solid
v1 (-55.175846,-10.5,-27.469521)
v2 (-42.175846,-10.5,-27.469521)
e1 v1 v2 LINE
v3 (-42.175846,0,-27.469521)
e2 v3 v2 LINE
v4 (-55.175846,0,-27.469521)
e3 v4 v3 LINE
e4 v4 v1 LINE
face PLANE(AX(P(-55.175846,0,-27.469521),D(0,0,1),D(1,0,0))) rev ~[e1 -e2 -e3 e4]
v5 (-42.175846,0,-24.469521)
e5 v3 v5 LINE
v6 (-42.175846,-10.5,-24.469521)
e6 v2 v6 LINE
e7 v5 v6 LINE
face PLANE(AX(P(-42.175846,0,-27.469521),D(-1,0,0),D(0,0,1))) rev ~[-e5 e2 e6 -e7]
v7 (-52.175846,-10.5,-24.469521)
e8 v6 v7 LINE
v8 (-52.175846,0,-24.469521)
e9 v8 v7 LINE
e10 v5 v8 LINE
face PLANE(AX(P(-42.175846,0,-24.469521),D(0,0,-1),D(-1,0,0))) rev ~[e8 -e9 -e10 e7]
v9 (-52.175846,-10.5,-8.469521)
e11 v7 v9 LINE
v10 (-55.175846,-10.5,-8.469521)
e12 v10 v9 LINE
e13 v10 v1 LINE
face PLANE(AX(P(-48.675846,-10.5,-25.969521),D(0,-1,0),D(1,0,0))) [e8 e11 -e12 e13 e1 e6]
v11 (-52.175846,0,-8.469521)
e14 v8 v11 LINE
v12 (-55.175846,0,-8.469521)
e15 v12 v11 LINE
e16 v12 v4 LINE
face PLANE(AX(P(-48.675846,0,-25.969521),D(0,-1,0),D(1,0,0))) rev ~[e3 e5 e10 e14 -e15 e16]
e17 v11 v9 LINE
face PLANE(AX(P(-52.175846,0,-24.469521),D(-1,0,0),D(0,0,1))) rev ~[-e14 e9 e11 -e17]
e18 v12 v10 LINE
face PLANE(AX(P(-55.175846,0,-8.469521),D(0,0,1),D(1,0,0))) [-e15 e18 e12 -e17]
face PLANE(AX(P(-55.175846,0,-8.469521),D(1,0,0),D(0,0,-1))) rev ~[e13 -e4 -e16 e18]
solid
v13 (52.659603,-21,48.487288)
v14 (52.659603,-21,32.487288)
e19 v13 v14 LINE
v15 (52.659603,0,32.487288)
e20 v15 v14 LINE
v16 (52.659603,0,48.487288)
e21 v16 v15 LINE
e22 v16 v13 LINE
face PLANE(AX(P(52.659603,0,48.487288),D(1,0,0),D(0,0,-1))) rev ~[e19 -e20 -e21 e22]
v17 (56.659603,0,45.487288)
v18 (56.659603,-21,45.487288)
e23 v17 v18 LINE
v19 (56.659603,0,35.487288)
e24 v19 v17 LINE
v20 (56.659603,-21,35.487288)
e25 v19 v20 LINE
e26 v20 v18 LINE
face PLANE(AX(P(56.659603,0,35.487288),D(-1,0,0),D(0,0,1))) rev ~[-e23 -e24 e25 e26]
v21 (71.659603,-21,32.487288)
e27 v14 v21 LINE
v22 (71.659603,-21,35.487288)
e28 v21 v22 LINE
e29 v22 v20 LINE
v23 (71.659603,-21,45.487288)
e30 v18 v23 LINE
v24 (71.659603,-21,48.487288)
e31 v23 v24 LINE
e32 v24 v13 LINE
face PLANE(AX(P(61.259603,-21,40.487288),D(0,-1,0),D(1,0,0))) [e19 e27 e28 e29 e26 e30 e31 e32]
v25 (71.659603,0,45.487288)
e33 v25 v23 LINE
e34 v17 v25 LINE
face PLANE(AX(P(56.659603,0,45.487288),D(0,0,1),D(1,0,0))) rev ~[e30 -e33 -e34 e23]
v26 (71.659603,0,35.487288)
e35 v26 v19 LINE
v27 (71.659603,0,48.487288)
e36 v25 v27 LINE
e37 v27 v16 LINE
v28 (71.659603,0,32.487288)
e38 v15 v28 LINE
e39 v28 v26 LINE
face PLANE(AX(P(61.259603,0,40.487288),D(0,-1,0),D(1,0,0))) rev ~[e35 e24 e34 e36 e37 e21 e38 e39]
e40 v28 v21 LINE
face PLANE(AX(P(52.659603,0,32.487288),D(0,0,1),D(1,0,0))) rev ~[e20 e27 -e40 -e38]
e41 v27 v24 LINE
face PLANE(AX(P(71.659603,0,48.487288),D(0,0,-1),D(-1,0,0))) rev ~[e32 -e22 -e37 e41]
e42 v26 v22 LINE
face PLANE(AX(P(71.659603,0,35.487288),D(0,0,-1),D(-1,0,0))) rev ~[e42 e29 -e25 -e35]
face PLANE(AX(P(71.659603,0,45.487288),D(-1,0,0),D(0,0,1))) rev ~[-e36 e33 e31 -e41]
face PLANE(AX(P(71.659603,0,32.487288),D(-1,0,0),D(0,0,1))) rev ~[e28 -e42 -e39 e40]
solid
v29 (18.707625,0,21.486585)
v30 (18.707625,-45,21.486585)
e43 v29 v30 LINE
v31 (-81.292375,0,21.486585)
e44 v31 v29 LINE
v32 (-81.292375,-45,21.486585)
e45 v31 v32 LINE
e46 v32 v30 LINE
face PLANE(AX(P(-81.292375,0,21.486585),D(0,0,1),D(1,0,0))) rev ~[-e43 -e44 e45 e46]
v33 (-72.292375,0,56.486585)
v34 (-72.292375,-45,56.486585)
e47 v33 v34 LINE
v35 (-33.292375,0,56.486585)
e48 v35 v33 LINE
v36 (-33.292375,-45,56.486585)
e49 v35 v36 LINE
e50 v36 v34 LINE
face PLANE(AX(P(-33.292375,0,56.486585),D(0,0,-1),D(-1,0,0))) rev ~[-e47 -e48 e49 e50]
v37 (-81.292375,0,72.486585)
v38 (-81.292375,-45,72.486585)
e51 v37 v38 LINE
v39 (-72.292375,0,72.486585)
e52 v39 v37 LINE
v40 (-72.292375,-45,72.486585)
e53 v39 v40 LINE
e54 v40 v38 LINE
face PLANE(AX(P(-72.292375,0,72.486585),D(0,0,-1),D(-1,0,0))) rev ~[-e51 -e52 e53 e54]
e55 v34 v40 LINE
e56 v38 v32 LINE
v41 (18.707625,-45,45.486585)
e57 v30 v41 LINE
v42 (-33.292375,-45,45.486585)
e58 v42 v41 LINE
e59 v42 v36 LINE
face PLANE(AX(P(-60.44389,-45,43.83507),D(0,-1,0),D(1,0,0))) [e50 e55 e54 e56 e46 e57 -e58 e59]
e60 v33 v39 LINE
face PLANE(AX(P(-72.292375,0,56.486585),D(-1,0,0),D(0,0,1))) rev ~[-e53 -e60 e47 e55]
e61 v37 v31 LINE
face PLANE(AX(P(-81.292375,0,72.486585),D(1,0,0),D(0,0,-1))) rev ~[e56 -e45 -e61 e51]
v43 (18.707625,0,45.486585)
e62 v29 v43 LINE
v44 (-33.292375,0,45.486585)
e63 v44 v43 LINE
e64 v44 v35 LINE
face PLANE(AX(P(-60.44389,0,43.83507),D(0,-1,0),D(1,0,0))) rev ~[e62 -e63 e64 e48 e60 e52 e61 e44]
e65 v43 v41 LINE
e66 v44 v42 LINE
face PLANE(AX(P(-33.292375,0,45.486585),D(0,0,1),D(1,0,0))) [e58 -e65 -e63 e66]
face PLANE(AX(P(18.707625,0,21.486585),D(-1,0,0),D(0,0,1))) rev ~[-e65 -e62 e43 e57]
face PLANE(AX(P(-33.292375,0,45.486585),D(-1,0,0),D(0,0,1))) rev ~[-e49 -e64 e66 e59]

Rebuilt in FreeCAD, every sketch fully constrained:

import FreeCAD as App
import Part
import Sketcher
from FreeCAD import Vector
Q = App.Units.Quantity

doc = App.newDocument("Part")
body = doc.addObject("PartDesign::Body", "Body")

# Sketch on XZ plane
sketch1 = body.newObject("Sketcher::SketchObject", "Sketch")
sketch1.AttachmentSupport = (doc.getObject("XZ_Plane"), [""])
sketch1.MapMode = "FlatFace"
sketch1.addGeometry([
    Part.LineSegment(Vector(-72, 72, 0), Vector(-81, 72, 0)),  # 0
    Part.LineSegment(Vector(-81, 72, 0), Vector(-81, 21, 0)),  # 1
    Part.LineSegment(Vector(-81, 21, 0), Vector(19, 21, 0)),  # 2
    Part.LineSegment(Vector(19, 21, 0), Vector(19, 45, 0)),  # 3
    Part.LineSegment(Vector(19, 45, 0), Vector(-33, 45, 0)),  # 4
    Part.LineSegment(Vector(-33, 45, 0), Vector(-33, 56, 0)),  # 5
    Part.LineSegment(Vector(-33, 56, 0), Vector(-72, 56, 0)),  # 6
    Part.LineSegment(Vector(-72, 56, 0), Vector(-72, 72, 0)),  # 7
], False)
sketch1.addConstraint([
    Sketcher.Constraint("Coincident", 0, 2, 1, 1),
    Sketcher.Constraint("Coincident", 1, 2, 2, 1),
    Sketcher.Constraint("Coincident", 2, 2, 3, 1),
    Sketcher.Constraint("Coincident", 3, 2, 4, 1),
    Sketcher.Constraint("Coincident", 4, 2, 5, 1),
    Sketcher.Constraint("Coincident", 5, 2, 6, 1),
    Sketcher.Constraint("Coincident", 6, 2, 7, 1),
    Sketcher.Constraint("Coincident", 7, 2, 0, 1),
    Sketcher.Constraint("Horizontal", 0),
    Sketcher.Constraint("Vertical", 1),
    Sketcher.Constraint("Horizontal", 2),
    Sketcher.Constraint("Vertical", 3),
    Sketcher.Constraint("Horizontal", 4),
    Sketcher.Constraint("Vertical", 5),
    Sketcher.Constraint("Horizontal", 6),
    Sketcher.Constraint("Vertical", 7),
    Sketcher.Constraint("DistanceX", 0, 2, 0, 1, Q("9 mm")),
    Sketcher.Constraint("DistanceX", 2, 1, 2, 2, Q("100 mm")),
    Sketcher.Constraint("DistanceX", 4, 2, 4, 1, Q("52 mm")),
    Sketcher.Constraint("DistanceY", 1, 2, 1, 1, Q("51 mm")),
    Sketcher.Constraint("DistanceY", 3, 1, 3, 2, Q("24 mm")),
    Sketcher.Constraint("DistanceY", 5, 1, 5, 2, Q("11 mm")),
    Sketcher.Constraint("DistanceX", 0, 2, -1, 1, Q("81.292375 mm")),
    Sketcher.Constraint("DistanceY", -1, 1, 0, 2, Q("72.486585 mm")),
])
pad1 = body.newObject("PartDesign::Pad", "Pad")
pad1.Profile = sketch1
pad1.Length = 45
body2 = doc.addObject("PartDesign::Body", "Body001")

# Sketch on XZ plane
sketch2 = body2.newObject("Sketcher::SketchObject", "Sketch001")
sketch2.AttachmentSupport = (doc.getObject("XZ_Plane001"), [""])
sketch2.MapMode = "FlatFace"
sketch2.addGeometry([
    Part.LineSegment(Vector(71.7, 48.5, 0), Vector(52.7, 48.5, 0)),  # 0
    Part.LineSegment(Vector(52.7, 48.5, 0), Vector(52.7, 32.5, 0)),  # 1
    Part.LineSegment(Vector(52.7, 32.5, 0), Vector(71.7, 32.5, 0)),  # 2
    Part.LineSegment(Vector(71.7, 32.5, 0), Vector(71.7, 35.5, 0)),  # 3
    Part.LineSegment(Vector(71.7, 35.5, 0), Vector(56.7, 35.5, 0)),  # 4
    Part.LineSegment(Vector(56.7, 35.5, 0), Vector(56.7, 45.5, 0)),  # 5
    Part.LineSegment(Vector(56.7, 45.5, 0), Vector(71.7, 45.5, 0)),  # 6
    Part.LineSegment(Vector(71.7, 45.5, 0), Vector(71.7, 48.5, 0)),  # 7
], False)
sketch2.addConstraint([
    Sketcher.Constraint("Coincident", 0, 2, 1, 1),
    Sketcher.Constraint("Coincident", 1, 2, 2, 1),
    Sketcher.Constraint("Coincident", 2, 2, 3, 1),
    Sketcher.Constraint("Coincident", 3, 2, 4, 1),
    Sketcher.Constraint("Coincident", 4, 2, 5, 1),
    Sketcher.Constraint("Coincident", 5, 2, 6, 1),
    Sketcher.Constraint("Coincident", 6, 2, 7, 1),
    Sketcher.Constraint("Coincident", 7, 2, 0, 1),
    Sketcher.Constraint("Horizontal", 0),
    Sketcher.Constraint("Vertical", 1),
    Sketcher.Constraint("Horizontal", 2),
    Sketcher.Constraint("Vertical", 3),
    Sketcher.Constraint("Horizontal", 4),
    Sketcher.Constraint("Vertical", 5),
    Sketcher.Constraint("Horizontal", 6),
    Sketcher.Constraint("Vertical", 7),
    Sketcher.Constraint("Vertical", 3, 2, 6, 2),
    Sketcher.Constraint("Equal", 3, 7),
    Sketcher.Constraint("DistanceX", 0, 2, 0, 1, Q("19 mm")),
    Sketcher.Constraint("DistanceX", 4, 2, 4, 1, Q("15 mm")),
    Sketcher.Constraint("DistanceY", 1, 2, 1, 1, Q("16 mm")),
    Sketcher.Constraint("DistanceY", 3, 1, 3, 2, Q("3 mm")),
    Sketcher.Constraint("DistanceX", -1, 1, 0, 2, Q("52.659603 mm")),
    Sketcher.Constraint("DistanceY", -1, 1, 0, 2, Q("48.487288 mm")),
])
pad2 = body2.newObject("PartDesign::Pad", "Pad001")
pad2.Profile = sketch2
pad2.Length = 21
body3 = doc.addObject("PartDesign::Body", "Body002")

# Sketch on XZ plane
sketch3 = body3.newObject("Sketcher::SketchObject", "Sketch002")
sketch3.AttachmentSupport = (doc.getObject("XZ_Plane002"), [""])
sketch3.MapMode = "FlatFace"
sketch3.addGeometry([
    Part.LineSegment(Vector(-55.2, -27.5, 0), Vector(-42.2, -27.5, 0)),  # 0
    Part.LineSegment(Vector(-42.2, -27.5, 0), Vector(-42.2, -24.5, 0)),  # 1
    Part.LineSegment(Vector(-42.2, -24.5, 0), Vector(-52.2, -24.5, 0)),  # 2
    Part.LineSegment(Vector(-52.2, -24.5, 0), Vector(-52.2, -8.5, 0)),  # 3
    Part.LineSegment(Vector(-52.2, -8.5, 0), Vector(-55.2, -8.5, 0)),  # 4
    Part.LineSegment(Vector(-55.2, -8.5, 0), Vector(-55.2, -27.5, 0)),  # 5
], False)
sketch3.addConstraint([
    Sketcher.Constraint("Coincident", 0, 2, 1, 1),
    Sketcher.Constraint("Coincident", 1, 2, 2, 1),
    Sketcher.Constraint("Coincident", 2, 2, 3, 1),
    Sketcher.Constraint("Coincident", 3, 2, 4, 1),
    Sketcher.Constraint("Coincident", 4, 2, 5, 1),
    Sketcher.Constraint("Coincident", 5, 2, 0, 1),
    Sketcher.Constraint("Horizontal", 0),
    Sketcher.Constraint("Vertical", 1),
    Sketcher.Constraint("Horizontal", 2),
    Sketcher.Constraint("Vertical", 3),
    Sketcher.Constraint("Horizontal", 4),
    Sketcher.Constraint("Vertical", 5),
    Sketcher.Constraint("Equal", 4, 1),
    Sketcher.Constraint("DistanceX", 0, 1, 0, 2, Q("13 mm")),
    Sketcher.Constraint("DistanceX", 2, 2, 2, 1, Q("10 mm")),
    Sketcher.Constraint("DistanceY", 3, 1, 3, 2, Q("16 mm")),
    Sketcher.Constraint("DistanceY", 0, 2, -1, 1, Q("27.469521 mm")),
    Sketcher.Constraint("DistanceX", 0, 2, -1, 1, Q("42.175846 mm")),
])
pad3 = body3.newObject("PartDesign::Pad", "Pad002")
pad3.Profile = sketch3
pad3.Length = 10.5

doc.recompute()
